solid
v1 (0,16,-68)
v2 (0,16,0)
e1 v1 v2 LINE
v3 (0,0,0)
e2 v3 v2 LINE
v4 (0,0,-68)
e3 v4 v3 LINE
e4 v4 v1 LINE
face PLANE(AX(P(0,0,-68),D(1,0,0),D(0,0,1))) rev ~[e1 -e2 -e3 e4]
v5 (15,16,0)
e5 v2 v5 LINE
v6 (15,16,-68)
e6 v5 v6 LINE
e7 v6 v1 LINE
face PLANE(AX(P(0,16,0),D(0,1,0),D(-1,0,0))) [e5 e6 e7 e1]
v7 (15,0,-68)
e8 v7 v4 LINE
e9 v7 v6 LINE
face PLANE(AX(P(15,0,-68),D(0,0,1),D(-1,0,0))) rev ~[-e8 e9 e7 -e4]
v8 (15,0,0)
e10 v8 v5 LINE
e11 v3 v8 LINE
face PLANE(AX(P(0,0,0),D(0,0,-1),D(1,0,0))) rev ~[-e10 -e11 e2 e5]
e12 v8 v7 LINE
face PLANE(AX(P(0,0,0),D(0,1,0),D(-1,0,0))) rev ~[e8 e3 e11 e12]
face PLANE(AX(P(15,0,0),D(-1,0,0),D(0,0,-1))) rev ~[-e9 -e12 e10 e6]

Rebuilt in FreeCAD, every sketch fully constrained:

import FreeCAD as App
import Part
import Sketcher

V = App.Vector

doc = App.newDocument("Part")
params = doc.addObject("Spreadsheet::Sheet", "Params")
for row, (alias, value) in enumerate([
    ("sketch1_width", "15 mm"),
    ("sketch1_height", "68 mm"),
    ("pad1_length", "16 mm"),
], start=1):
    params.set(f"A{row}", alias)
    params.set(f"B{row}", "=" + value)
    params.setAlias(f"B{row}", alias)

body = doc.addObject("PartDesign::Body", "Body")

# Sketch on XZ plane
sketch1 = body.newObject("Sketcher::SketchObject", "Sketch")
sketch1.AttachmentSupport = (doc.getObject("XZ_Plane"), [""])
sketch1.MapMode = "FlatFace"
sketch1.addGeometry(Part.LineSegment(V(0, -68, 0), V(0, 0, 0)), False)
sketch1.addGeometry(Part.LineSegment(V(0, 0, 0), V(15, 0, 0)), False)
sketch1.addGeometry(Part.LineSegment(V(15, 0, 0), V(15, -68, 0)), False)
sketch1.addGeometry(Part.LineSegment(V(15, -68, 0), V(0, -68, 0)), False)
sketch1.addConstraint(Sketcher.Constraint("Coincident", 0, 2, 1, 1))
sketch1.addConstraint(Sketcher.Constraint("Coincident", 1, 2, 2, 1))
sketch1.addConstraint(Sketcher.Constraint("Coincident", 2, 2, 3, 1))
sketch1.addConstraint(Sketcher.Constraint("Coincident", 3, 2, 0, 1))
sketch1.addConstraint(Sketcher.Constraint("Vertical", 0))
sketch1.addConstraint(Sketcher.Constraint("Horizontal", 1))
sketch1.addConstraint(Sketcher.Constraint("Vertical", 2))
sketch1.addConstraint(Sketcher.Constraint("Horizontal", 3))
sketch1.addConstraint(Sketcher.Constraint("Coincident", 0, 2, -1, 1))
sketch1.addConstraint(Sketcher.Constraint("DistanceX", 1, 1, 1, 2, 15.0))
sketch1.addConstraint(Sketcher.Constraint("DistanceY", 0, 1, 0, 2, 68.0))
sketch1.setExpression("Constraints[9]", "Params.sketch1_width")
sketch1.setExpression("Constraints[10]", "Params.sketch1_height")
pad1 = body.newObject("PartDesign::Pad", "Pad")
pad1.Profile = sketch1
pad1.setExpression("Length", "Params.pad1_length")
pad1.Reversed = True

doc.recompute()
